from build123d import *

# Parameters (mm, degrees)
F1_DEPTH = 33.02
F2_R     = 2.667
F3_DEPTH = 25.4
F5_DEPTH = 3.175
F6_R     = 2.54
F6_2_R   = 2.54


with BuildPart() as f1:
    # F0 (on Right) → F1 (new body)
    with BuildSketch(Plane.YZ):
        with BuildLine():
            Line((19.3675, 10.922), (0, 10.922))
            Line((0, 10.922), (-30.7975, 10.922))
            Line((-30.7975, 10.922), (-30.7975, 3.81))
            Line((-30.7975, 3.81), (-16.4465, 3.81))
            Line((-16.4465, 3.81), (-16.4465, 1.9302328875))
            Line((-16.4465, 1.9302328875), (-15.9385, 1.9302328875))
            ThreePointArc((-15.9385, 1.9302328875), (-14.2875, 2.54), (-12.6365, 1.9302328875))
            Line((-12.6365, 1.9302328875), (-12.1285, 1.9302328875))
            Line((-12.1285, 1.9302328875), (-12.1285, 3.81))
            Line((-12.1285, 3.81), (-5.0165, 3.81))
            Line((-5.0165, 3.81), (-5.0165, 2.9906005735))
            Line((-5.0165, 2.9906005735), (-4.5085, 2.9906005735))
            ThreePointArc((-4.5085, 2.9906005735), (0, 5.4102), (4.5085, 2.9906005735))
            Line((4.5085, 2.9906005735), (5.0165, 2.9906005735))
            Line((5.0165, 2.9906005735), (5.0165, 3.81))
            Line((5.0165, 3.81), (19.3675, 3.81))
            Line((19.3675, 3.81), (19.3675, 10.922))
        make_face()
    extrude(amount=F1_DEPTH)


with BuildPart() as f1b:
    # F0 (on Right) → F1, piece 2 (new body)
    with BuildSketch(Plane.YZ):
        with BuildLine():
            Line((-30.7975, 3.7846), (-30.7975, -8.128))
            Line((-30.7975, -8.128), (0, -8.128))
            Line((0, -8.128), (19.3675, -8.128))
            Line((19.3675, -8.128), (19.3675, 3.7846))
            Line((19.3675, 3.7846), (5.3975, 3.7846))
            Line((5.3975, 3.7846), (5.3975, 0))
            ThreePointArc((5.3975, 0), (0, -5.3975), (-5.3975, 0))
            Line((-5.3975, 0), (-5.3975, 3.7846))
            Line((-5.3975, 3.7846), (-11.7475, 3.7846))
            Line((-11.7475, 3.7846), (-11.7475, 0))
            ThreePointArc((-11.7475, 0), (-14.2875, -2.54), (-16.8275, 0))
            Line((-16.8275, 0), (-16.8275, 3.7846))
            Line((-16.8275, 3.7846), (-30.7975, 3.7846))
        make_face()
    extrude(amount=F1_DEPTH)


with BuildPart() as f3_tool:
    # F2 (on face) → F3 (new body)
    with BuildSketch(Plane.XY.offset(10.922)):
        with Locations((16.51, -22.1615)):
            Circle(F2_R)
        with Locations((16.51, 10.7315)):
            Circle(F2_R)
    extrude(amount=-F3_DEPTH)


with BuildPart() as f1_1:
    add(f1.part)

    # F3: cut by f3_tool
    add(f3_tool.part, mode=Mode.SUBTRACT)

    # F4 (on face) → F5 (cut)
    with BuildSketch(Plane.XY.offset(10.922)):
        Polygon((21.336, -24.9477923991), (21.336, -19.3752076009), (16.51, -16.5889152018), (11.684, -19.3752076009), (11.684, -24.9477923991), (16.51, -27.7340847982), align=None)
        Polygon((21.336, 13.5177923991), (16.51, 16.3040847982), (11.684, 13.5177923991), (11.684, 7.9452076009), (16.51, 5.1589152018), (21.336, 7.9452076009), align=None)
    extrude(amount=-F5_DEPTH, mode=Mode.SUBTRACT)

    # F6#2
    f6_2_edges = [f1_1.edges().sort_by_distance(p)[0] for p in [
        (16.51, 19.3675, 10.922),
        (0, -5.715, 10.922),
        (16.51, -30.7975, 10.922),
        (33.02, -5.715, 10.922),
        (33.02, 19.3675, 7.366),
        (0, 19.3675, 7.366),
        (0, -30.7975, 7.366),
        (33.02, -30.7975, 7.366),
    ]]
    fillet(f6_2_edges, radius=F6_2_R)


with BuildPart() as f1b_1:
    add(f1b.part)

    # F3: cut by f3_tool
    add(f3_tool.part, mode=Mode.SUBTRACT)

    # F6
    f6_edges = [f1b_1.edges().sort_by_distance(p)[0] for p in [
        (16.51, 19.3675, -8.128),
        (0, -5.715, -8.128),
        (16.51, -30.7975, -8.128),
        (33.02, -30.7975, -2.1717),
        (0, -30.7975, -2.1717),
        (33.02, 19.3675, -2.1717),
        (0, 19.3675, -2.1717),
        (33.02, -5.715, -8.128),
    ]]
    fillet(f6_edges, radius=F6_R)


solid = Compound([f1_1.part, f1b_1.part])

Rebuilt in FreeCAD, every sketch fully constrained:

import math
import FreeCAD as App
import Part
import Sketcher
Q = App.Units.Quantity


def edges_at(feature, points):
    """Names of the edges that pass closest to the given points."""
    edges = feature.Shape.Edges
    near = lambda p: min(range(len(edges)), key=lambda i: edges[i].distToShape(Part.Vertex(*p))[0])
    return sorted({f"Edge{near(p) + 1}" for p in points})

doc = App.newDocument("Part")
body = doc.addObject("PartDesign::Body", "Body")

# Sketch on YZ plane
sketch1 = body.newObject("Sketcher::SketchObject", "Sketch")
sketch1.AttachmentSupport = (doc.getObject("YZ_Plane"), [""])
sketch1.MapMode = "FlatFace"
sketch1.addGeometry(Part.LineSegment(App.Vector(19.4, 10.9, 0), App.Vector(-30.8, 10.9, 0)), False)
sketch1.addGeometry(Part.LineSegment(App.Vector(-30.8, 10.9, 0), App.Vector(-30.8, 3.8, 0)), False)
sketch1.addGeometry(Part.LineSegment(App.Vector(-30.8, 3.8, 0), App.Vector(-16.4, 3.8, 0)), False)
sketch1.addGeometry(Part.LineSegment(App.Vector(-16.4, 3.8, 0), App.Vector(-16.4, 1.9, 0)), False)
sketch1.addGeometry(Part.LineSegment(App.Vector(-16.4, 1.9, 0), App.Vector(-15.9, 1.9, 0)), False)
sketch1.addGeometry(Part.ArcOfCircle(Part.Circle(App.Vector(-14.3, 0, 0), App.Vector(0, 0, 1), 2.5), math.radians(49), math.radians(131)), False)
sketch1.addGeometry(Part.LineSegment(App.Vector(-12.6, 1.9, 0), App.Vector(-12.1, 1.9, 0)), False)
sketch1.addGeometry(Part.LineSegment(App.Vector(-12.1, 1.9, 0), App.Vector(-12.1, 3.8, 0)), False)
sketch1.addGeometry(Part.LineSegment(App.Vector(-12.1, 3.8, 0), App.Vector(-5, 3.8, 0)), False)
sketch1.addGeometry(Part.LineSegment(App.Vector(-5, 3.8, 0), App.Vector(-5, 3, 0)), False)
sketch1.addGeometry(Part.LineSegment(App.Vector(-5, 3, 0), App.Vector(-4.5, 3, 0)), False)
sketch1.addGeometry(Part.ArcOfCircle(Part.Circle(App.Vector(0, 0, 0), App.Vector(0, 0, 1), 5.4), math.radians(34), math.radians(146)), False)
sketch1.addGeometry(Part.LineSegment(App.Vector(4.5, 3, 0), App.Vector(5, 3, 0)), False)
sketch1.addGeometry(Part.LineSegment(App.Vector(5, 3, 0), App.Vector(5, 3.8, 0)), False)
sketch1.addGeometry(Part.LineSegment(App.Vector(5, 3.8, 0), App.Vector(19.4, 3.8, 0)), False)
sketch1.addGeometry(Part.LineSegment(App.Vector(19.4, 3.8, 0), App.Vector(19.4, 10.9, 0)), False)
sketch1.addConstraint(Sketcher.Constraint("Coincident", 0, 2, 1, 1))
sketch1.addConstraint(Sketcher.Constraint("Coincident", 1, 2, 2, 1))
sketch1.addConstraint(Sketcher.Constraint("Coincident", 2, 2, 3, 1))
sketch1.addConstraint(Sketcher.Constraint("Coincident", 3, 2, 4, 1))
sketch1.addConstraint(Sketcher.Constraint("Coincident", 4, 2, 5, 2))
sketch1.addConstraint(Sketcher.Constraint("Coincident", 5, 1, 6, 1))
sketch1.addConstraint(Sketcher.Constraint("Coincident", 6, 2, 7, 1))
sketch1.addConstraint(Sketcher.Constraint("Coincident", 7, 2, 8, 1))
sketch1.addConstraint(Sketcher.Constraint("Coincident", 8, 2, 9, 1))
sketch1.addConstraint(Sketcher.Constraint("Coincident", 9, 2, 10, 1))
sketch1.addConstraint(Sketcher.Constraint("Coincident", 10, 2, 11, 2))
sketch1.addConstraint(Sketcher.Constraint("Coincident", 11, 1, 12, 1))
sketch1.addConstraint(Sketcher.Constraint("Coincident", 12, 2, 13, 1))
sketch1.addConstraint(Sketcher.Constraint("Coincident", 13, 2, 14, 1))
sketch1.addConstraint(Sketcher.Constraint("Coincident", 14, 2, 15, 1))
sketch1.addConstraint(Sketcher.Constraint("Coincident", 15, 2, 0, 1))
sketch1.addConstraint(Sketcher.Constraint("Horizontal", 0))
sketch1.addConstraint(Sketcher.Constraint("Vertical", 1))
sketch1.addConstraint(Sketcher.Constraint("Horizontal", 2))
sketch1.addConstraint(Sketcher.Constraint("Vertical", 3))
sketch1.addConstraint(Sketcher.Constraint("Horizontal", 4))
sketch1.addConstraint(Sketcher.Constraint("Horizontal", 6))
sketch1.addConstraint(Sketcher.Constraint("Vertical", 7))
sketch1.addConstraint(Sketcher.Constraint("Horizontal", 8))
sketch1.addConstraint(Sketcher.Constraint("Vertical", 9))
sketch1.addConstraint(Sketcher.Constraint("Horizontal", 10))
sketch1.addConstraint(Sketcher.Constraint("Horizontal", 12))
sketch1.addConstraint(Sketcher.Constraint("Vertical", 13))
sketch1.addConstraint(Sketcher.Constraint("Horizontal", 14))
sketch1.addConstraint(Sketcher.Constraint("Vertical", 15))
sketch1.addConstraint(Sketcher.Constraint("Coincident", 11, 3, -1, 1))
sketch1.addConstraint(Sketcher.Constraint("Symmetric", 9, 2, 12, 2, -2))
sketch1.addConstraint(Sketcher.Constraint("PointOnObject", 5, 3, -1))
sketch1.addConstraint(Sketcher.Constraint("Horizontal", 4, 2, 5, 1))
sketch1.addConstraint(Sketcher.Constraint("Horizontal", 2, 2, 7, 2))
sketch1.addConstraint(Sketcher.Constraint("Horizontal", 8, 2, 13, 2))
sketch1.addConstraint(Sketcher.Constraint("Equal", 4, 6))
sketch1.addConstraint(Sketcher.Constraint("Equal", 6, 10))
sketch1.addConstraint(Sketcher.Constraint("Equal", 2, 14))
sketch1.addConstraint(Sketcher.Constraint("Equal", 8, 1))
sketch1.addConstraint(Sketcher.Constraint("Radius", 5, Q("0.1 in")))
sketch1.addConstraint(Sketcher.Constraint("Radius", 11, Q("0.213 in")))
sketch1.addConstraint(Sketcher.Constraint("DistanceX", 4, 1, 4, 2, Q("0.02 in")))
sketch1.addConstraint(Sketcher.Constraint("DistanceX", 8, 1, 8, 2, Q("0.28 in")))
sketch1.addConstraint(Sketcher.Constraint("DistanceX", 0, 2, 0, 1, Q("1.975 in")))
sketch1.addConstraint(Sketcher.Constraint("DistanceX", 2, 1, 2, 2, Q("0.565 in")))
sketch1.addConstraint(Sketcher.Constraint("DistanceY", -1, 1, 0, 2, Q("0.43 in")))
sketch1.addConstraint(Sketcher.Constraint("DistanceX", 0, 2, 5, 3, Q("0.65 in")))
pad1 = body.newObject("PartDesign::Pad", "Pad")
pad1.Profile = sketch1
pad1.Length = Q("1.3 in")
body2 = doc.addObject("PartDesign::Body", "Body001")

# Sketch on YZ plane
sketch2 = body2.newObject("Sketcher::SketchObject", "Sketch001")
sketch2.AttachmentSupport = (doc.getObject("YZ_Plane001"), [""])
sketch2.MapMode = "FlatFace"
sketch2.addGeometry(Part.LineSegment(App.Vector(-30.8, 3.8, 0), App.Vector(-30.8, -8.1, 0)), False)
sketch2.addGeometry(Part.LineSegment(App.Vector(-30.8, -8.1, 0), App.Vector(19.4, -8.1, 0)), False)
sketch2.addGeometry(Part.LineSegment(App.Vector(19.4, -8.1, 0), App.Vector(19.4, 3.8, 0)), False)
sketch2.addGeometry(Part.LineSegment(App.Vector(19.4, 3.8, 0), App.Vector(5.4, 3.8, 0)), False)
sketch2.addGeometry(Part.LineSegment(App.Vector(5.4, 3.8, 0), App.Vector(5.4, 0, 0)), False)
sketch2.addGeometry(Part.ArcOfCircle(Part.Circle(App.Vector(0, 0, 0), App.Vector(0, 0, 1), 5.4), math.radians(180), math.radians(360)), False)
sketch2.addGeometry(Part.LineSegment(App.Vector(-5.4, 0, 0), App.Vector(-5.4, 3.8, 0)), False)
sketch2.addGeometry(Part.LineSegment(App.Vector(-5.4, 3.8, 0), App.Vector(-11.7, 3.8, 0)), False)
sketch2.addGeometry(Part.LineSegment(App.Vector(-11.7, 3.8, 0), App.Vector(-11.7, 0, 0)), False)
sketch2.addGeometry(Part.ArcOfCircle(Part.Circle(App.Vector(-14.3, 0, 0), App.Vector(0, 0, 1), 2.5), math.radians(180), math.radians(360)), False)
sketch2.addGeometry(Part.LineSegment(App.Vector(-16.8, 0, 0), App.Vector(-16.8, 3.8, 0)), False)
sketch2.addGeometry(Part.LineSegment(App.Vector(-16.8, 3.8, 0), App.Vector(-30.8, 3.8, 0)), False)
sketch2.addConstraint(Sketcher.Constraint("Coincident", 0, 2, 1, 1))
sketch2.addConstraint(Sketcher.Constraint("Coincident", 1, 2, 2, 1))
sketch2.addConstraint(Sketcher.Constraint("Coincident", 2, 2, 3, 1))
sketch2.addConstraint(Sketcher.Constraint("Coincident", 3, 2, 4, 1))
sketch2.addConstraint(Sketcher.Constraint("Tangent", 4, 2, 5, 2))
sketch2.addConstraint(Sketcher.Constraint("Tangent", 5, 1, 6, 1))
sketch2.addConstraint(Sketcher.Constraint("Coincident", 6, 2, 7, 1))
sketch2.addConstraint(Sketcher.Constraint("Coincident", 7, 2, 8, 1))
sketch2.addConstraint(Sketcher.Constraint("Tangent", 8, 2, 9, 2))
sketch2.addConstraint(Sketcher.Constraint("Tangent", 9, 1, 10, 1))
sketch2.addConstraint(Sketcher.Constraint("Coincident", 10, 2, 11, 1))
sketch2.addConstraint(Sketcher.Constraint("Coincident", 11, 2, 0, 1))
sketch2.addConstraint(Sketcher.Constraint("Vertical", 0))
sketch2.addConstraint(Sketcher.Constraint("Horizontal", 1))
sketch2.addConstraint(Sketcher.Constraint("Vertical", 2))
sketch2.addConstraint(Sketcher.Constraint("Horizontal", 3))
sketch2.addConstraint(Sketcher.Constraint("Vertical", 4))
sketch2.addConstraint(Sketcher.Constraint("Vertical", 6))
sketch2.addConstraint(Sketcher.Constraint("Horizontal", 7))
sketch2.addConstraint(Sketcher.Constraint("Vertical", 8))
sketch2.addConstraint(Sketcher.Constraint("Vertical", 10))
sketch2.addConstraint(Sketcher.Constraint("Horizontal", 11))
sketch2.addConstraint(Sketcher.Constraint("Coincident", 5, 3, -1, 1))
sketch2.addConstraint(Sketcher.Constraint("PointOnObject", 9, 3, -1))
sketch2.addConstraint(Sketcher.Constraint("Horizontal", 3, 2, 6, 2))
sketch2.addConstraint(Sketcher.Constraint("Horizontal", 7, 2, 10, 2))
sketch2.addConstraint(Sketcher.Constraint("Equal", 3, 11))
sketch2.addConstraint(Sketcher.Constraint("Radius", 9, Q("0.1 in")))
sketch2.addConstraint(Sketcher.Constraint("DistanceX", 3, 2, 3, 1, Q("0.55 in")))
sketch2.addConstraint(Sketcher.Constraint("DistanceX", 7, 2, 7, 1, Q("0.25 in")))
sketch2.addConstraint(Sketcher.Constraint("Radius", 5, Q("0.2125 in")))
sketch2.addConstraint(Sketcher.Constraint("DistanceY", 0, 2, 0, 1, Q("0.469 in")))
sketch2.addConstraint(Sketcher.Constraint("DistanceY", 4, 2, 4, 1, Q("0.149 in")))
pad2 = body2.newObject("PartDesign::Pad", "Pad001")
pad2.Profile = sketch2
pad2.Length = Q("1.3 in")
body3 = doc.addObject("PartDesign::Body", "Body002")
body3.AllowCompound = True

# Sketch on XY plane
sketch3 = body3.newObject("Sketcher::SketchObject", "Sketch002")
sketch3.AttachmentSupport = (doc.getObject("XY_Plane002"), [""])
sketch3.MapMode = "FlatFace"
sketch3.AttachmentOffset = App.Placement(App.Vector(0, 0, 0.43 * 25.4), App.Rotation())
sketch3.addGeometry(Part.Circle(App.Vector(16.5, -22.2, 0), App.Vector(0, 0, 1), 2.7), False)
sketch3.addGeometry(Part.Circle(App.Vector(16.5, 10.7, 0), App.Vector(0, 0, 1), 2.7), False)
sketch3.addConstraint(Sketcher.Constraint("Equal", 0, 1))
sketch3.addConstraint(Sketcher.Constraint("Vertical", 0, 3, 1, 3))
sketch3.addConstraint(Sketcher.Constraint("Diameter", 0, Q("0.21 in")))
sketch3.addConstraint(Sketcher.Constraint("DistanceX", -1, 1, 0, 3, Q("0.65 in")))
sketch3.addConstraint(Sketcher.Constraint("DistanceY", 0, 3, 1, 3, Q("1.295 in")))
sketch3.addConstraint(Sketcher.Constraint("DistanceY", 0, 3, -1, 1, Q("0.8725 in")))
pad3 = body3.newObject("PartDesign::Pad", "Pad002")
pad3.Profile = sketch3
pad3.Length = Q("1 in")
pad3.Reversed = True
doc.recompute()

body4 = doc.addObject("PartDesign::Body", "Body003")
body4.BaseFeature = body3
boolean = body.newObject("PartDesign::Boolean", "Boolean")
boolean.Type = "Cut"
boolean.addObjects([body4])
doc.recompute()

# Sketch on XY plane
sketch4 = body.newObject("Sketcher::SketchObject", "Sketch003")
sketch4.AttachmentSupport = (doc.getObject("XY_Plane"), [""])
sketch4.MapMode = "FlatFace"
sketch4.AttachmentOffset = App.Placement(App.Vector(0, 0, 0.43 * 25.4), App.Rotation())
sketch4.addGeometry(Part.LineSegment(App.Vector(21, -25, 0), App.Vector(21, -19, 0)), False)
sketch4.addGeometry(Part.LineSegment(App.Vector(21, -19, 0), App.Vector(17, -17, 0)), False)
sketch4.addGeometry(Part.LineSegment(App.Vector(17, -17, 0), App.Vector(12, -19, 0)), False)
sketch4.addGeometry(Part.LineSegment(App.Vector(12, -19, 0), App.Vector(12, -25, 0)), False)
sketch4.addGeometry(Part.LineSegment(App.Vector(12, -25, 0), App.Vector(17, -28, 0)), False)
sketch4.addGeometry(Part.LineSegment(App.Vector(17, -28, 0), App.Vector(21, -25, 0)), False)
sketch4.addGeometry(Part.LineSegment(App.Vector(21, 14, 0), App.Vector(17, 16, 0)), False)
sketch4.addGeometry(Part.LineSegment(App.Vector(17, 16, 0), App.Vector(12, 14, 0)), False)
sketch4.addGeometry(Part.LineSegment(App.Vector(12, 14, 0), App.Vector(12, 8, 0)), False)
sketch4.addGeometry(Part.LineSegment(App.Vector(12, 8, 0), App.Vector(17, 5, 0)), False)
sketch4.addGeometry(Part.LineSegment(App.Vector(17, 5, 0), App.Vector(21, 8, 0)), False)
sketch4.addGeometry(Part.LineSegment(App.Vector(21, 8, 0), App.Vector(21, 14, 0)), False)
sketch4.addConstraint(Sketcher.Constraint("Coincident", 0, 2, 1, 1))
sketch4.addConstraint(Sketcher.Constraint("Coincident", 1, 2, 2, 1))
sketch4.addConstraint(Sketcher.Constraint("Coincident", 2, 2, 3, 1))
sketch4.addConstraint(Sketcher.Constraint("Coincident", 3, 2, 4, 1))
sketch4.addConstraint(Sketcher.Constraint("Coincident", 4, 2, 5, 1))
sketch4.addConstraint(Sketcher.Constraint("Coincident", 5, 2, 0, 1))
sketch4.addConstraint(Sketcher.Constraint("Coincident", 6, 2, 7, 1))
sketch4.addConstraint(Sketcher.Constraint("Coincident", 7, 2, 8, 1))
sketch4.addConstraint(Sketcher.Constraint("Coincident", 8, 2, 9, 1))
sketch4.addConstraint(Sketcher.Constraint("Coincident", 9, 2, 10, 1))
sketch4.addConstraint(Sketcher.Constraint("Coincident", 10, 2, 11, 1))
sketch4.addConstraint(Sketcher.Constraint("Coincident", 11, 2, 6, 1))
sketch4.addConstraint(Sketcher.Constraint("Vertical", 0))
sketch4.addConstraint(Sketcher.Constraint("Vertical", 3))
sketch4.addConstraint(Sketcher.Constraint("Vertical", 8))
sketch4.addConstraint(Sketcher.Constraint("Vertical", 11))
sketch4.addConstraint(Sketcher.Constraint("Parallel", 1, 4))
sketch4.addConstraint(Sketcher.Constraint("Parallel", 2, 5))
sketch4.addConstraint(Sketcher.Constraint("Parallel", 4, 6))
sketch4.addConstraint(Sketcher.Constraint("Parallel", 5, 7))
sketch4.addConstraint(Sketcher.Constraint("Parallel", 6, 9))
sketch4.addConstraint(Sketcher.Constraint("Parallel", 7, 10))
sketch4.addConstraint(Sketcher.Constraint("Horizontal", 0, 2, 2, 2))
sketch4.addConstraint(Sketcher.Constraint("Horizontal", 3, 2, 5, 2))
sketch4.addConstraint(Sketcher.Constraint("Horizontal", 8, 2, 10, 2))
sketch4.addConstraint(Sketcher.Constraint("Horizontal", 7, 2, 11, 2))
sketch4.addConstraint(Sketcher.Constraint("Vertical", 1, 2, 4, 2))
sketch4.addConstraint(Sketcher.Constraint("Vertical", 4, 2, 6, 2))
sketch4.addConstraint(Sketcher.Constraint("Vertical", 3, 2, 7, 2))
sketch4.addConstraint(Sketcher.Constraint("Equal", 3, 8))
sketch4.addConstraint(Sketcher.Constraint("Angle", 1, Q("150 deg")))
sketch4.addConstraint(Sketcher.Constraint("DistanceX", -1, 1, 0, 2, Q("0.84 in")))
sketch4.addConstraint(Sketcher.Constraint("DistanceX", -1, 1, 1, 2, Q("0.65 in")))
sketch4.addConstraint(Sketcher.Constraint("DistanceY", 1, 2, 6, 2, Q("1.295 in")))
sketch4.addConstraint(Sketcher.Constraint("DistanceY", 0, 1, 0, 2, Q("5.572585 mm")))
sketch4.addConstraint(Sketcher.Constraint("DistanceY", 0, 2, -1, 1, Q("19.375208 mm")))
pocket1 = body.newObject("PartDesign::Pocket", "Pocket")
pocket1.Profile = sketch4
pocket1.Length = Q("0.125 in")
doc.recompute()

fillet = body.newObject("PartDesign::Fillet", "Fillet")
fillet.Base = (pocket1, edges_at(pocket1, [
    (16.51, 19.367, 10.922),
    (0, -5.715, 10.922),
    (16.51, -30.797, 10.922),
    (33.02, -5.715, 10.922),
    (33.02, 19.367, 7.366),
    (0, 19.367, 7.366),
    (0, -30.797, 7.366),
    (33.02, -30.797, 7.366),
]))
fillet.Radius = Q("0.1 in")
doc.recompute()

boolean2 = body2.newObject("PartDesign::Boolean", "Boolean001")
boolean2.Type = "Cut"
boolean2.addObjects([body3])
doc.recompute()

fillet2 = body2.newObject("PartDesign::Fillet", "Fillet001")
fillet2.Base = (boolean2, edges_at(boolean2, [
    (16.51, 19.367, -8.128),
    (0, -5.715, -8.128),
    (16.51, -30.797, -8.128),
    (33.02, -30.797, -2.172),
    (0, -30.797, -2.172),
    (33.02, 19.367, -2.172),
    (0, 19.367, -2.172),
    (33.02, -5.715, -8.128),
]))
fillet2.Radius = Q("0.1 in")

doc.recompute()
